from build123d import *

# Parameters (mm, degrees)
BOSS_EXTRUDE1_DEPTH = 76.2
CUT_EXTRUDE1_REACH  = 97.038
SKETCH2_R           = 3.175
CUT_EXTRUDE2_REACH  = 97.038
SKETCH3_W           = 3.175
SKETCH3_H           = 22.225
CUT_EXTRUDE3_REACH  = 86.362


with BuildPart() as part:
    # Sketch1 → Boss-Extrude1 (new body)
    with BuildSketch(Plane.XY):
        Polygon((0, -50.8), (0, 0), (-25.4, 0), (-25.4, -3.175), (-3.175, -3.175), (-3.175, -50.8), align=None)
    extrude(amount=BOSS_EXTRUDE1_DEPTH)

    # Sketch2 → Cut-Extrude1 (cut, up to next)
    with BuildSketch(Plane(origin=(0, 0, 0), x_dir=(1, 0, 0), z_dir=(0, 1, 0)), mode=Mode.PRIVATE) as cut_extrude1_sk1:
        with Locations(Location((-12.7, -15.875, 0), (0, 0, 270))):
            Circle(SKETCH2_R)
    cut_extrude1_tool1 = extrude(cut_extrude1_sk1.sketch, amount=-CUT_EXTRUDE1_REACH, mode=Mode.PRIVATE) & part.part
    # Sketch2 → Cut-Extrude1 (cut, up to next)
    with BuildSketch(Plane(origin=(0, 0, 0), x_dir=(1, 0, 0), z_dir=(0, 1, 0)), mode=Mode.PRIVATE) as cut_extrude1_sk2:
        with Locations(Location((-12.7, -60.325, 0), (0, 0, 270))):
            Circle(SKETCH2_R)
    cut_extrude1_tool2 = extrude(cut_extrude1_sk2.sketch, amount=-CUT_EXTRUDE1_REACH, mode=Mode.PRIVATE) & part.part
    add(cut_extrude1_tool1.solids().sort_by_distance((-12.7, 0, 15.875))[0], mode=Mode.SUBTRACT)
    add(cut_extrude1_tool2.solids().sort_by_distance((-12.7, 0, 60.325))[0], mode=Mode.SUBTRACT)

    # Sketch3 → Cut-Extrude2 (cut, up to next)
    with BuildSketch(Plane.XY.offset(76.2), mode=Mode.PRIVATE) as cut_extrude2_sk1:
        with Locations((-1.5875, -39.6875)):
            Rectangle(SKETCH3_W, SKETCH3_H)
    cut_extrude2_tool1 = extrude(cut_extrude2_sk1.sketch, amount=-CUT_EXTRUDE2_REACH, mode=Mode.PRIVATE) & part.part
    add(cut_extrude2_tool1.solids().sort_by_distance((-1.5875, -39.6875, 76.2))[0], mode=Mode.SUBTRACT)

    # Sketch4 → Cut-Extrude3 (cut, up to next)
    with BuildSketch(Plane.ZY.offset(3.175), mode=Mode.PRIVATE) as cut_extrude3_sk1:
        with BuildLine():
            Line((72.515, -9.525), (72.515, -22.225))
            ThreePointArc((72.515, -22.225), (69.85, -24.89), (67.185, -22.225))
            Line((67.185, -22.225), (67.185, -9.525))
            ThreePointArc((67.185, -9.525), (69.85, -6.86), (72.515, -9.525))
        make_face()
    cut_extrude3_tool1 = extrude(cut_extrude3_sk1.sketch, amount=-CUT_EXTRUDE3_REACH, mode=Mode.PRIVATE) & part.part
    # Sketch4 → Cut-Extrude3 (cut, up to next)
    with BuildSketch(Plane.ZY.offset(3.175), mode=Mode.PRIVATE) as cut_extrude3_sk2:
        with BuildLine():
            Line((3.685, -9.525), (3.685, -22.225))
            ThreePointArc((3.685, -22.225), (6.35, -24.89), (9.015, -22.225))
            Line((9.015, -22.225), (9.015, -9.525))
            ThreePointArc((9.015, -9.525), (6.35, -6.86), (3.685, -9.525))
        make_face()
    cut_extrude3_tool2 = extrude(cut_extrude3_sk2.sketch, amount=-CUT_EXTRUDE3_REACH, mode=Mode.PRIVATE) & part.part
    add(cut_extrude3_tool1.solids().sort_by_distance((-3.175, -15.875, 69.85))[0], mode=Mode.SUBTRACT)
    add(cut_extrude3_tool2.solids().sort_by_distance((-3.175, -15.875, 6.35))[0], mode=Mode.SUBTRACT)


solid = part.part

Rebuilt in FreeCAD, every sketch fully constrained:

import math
import FreeCAD as App
import Part
import Sketcher
from FreeCAD import Vector
Q = App.Units.Quantity


def add_polygon(sketch, points):
    """Adds a closed chain of lines whose ends are joined by coincident constraints."""
    first, n = sketch.GeometryCount, len(points)
    for a, b in zip(points, points[1:] + points[:1]):
        sketch.addGeometry(Part.LineSegment(App.Vector(*a, 0), App.Vector(*b, 0)), False)
    for i in range(n):
        sketch.addConstraint(Sketcher.Constraint("Coincident", first + i, 2, first + (i + 1) % n, 1))

doc = App.newDocument("Part")
body = doc.addObject("PartDesign::Body", "Body")

sketch1 = body.newObject("Sketcher::SketchObject", "Sketch")
sketch1.AttachmentSupport = (doc.getObject("XY_Plane"), [""])
sketch1.MapMode = "FlatFace"
add_polygon(sketch1, [(0, -50.8), (0, 0), (-25.4, 0), (-25.4, -3.2), (-3.2, -3.2), (-3.2, -50.8)])
sketch1.addConstraint(Sketcher.Constraint("Vertical", 0))
sketch1.addConstraint(Sketcher.Constraint("Horizontal", 1))
sketch1.addConstraint(Sketcher.Constraint("Vertical", 2))
sketch1.addConstraint(Sketcher.Constraint("Horizontal", 3))
sketch1.addConstraint(Sketcher.Constraint("Vertical", 4))
sketch1.addConstraint(Sketcher.Constraint("Horizontal", 5))
sketch1.addConstraint(Sketcher.Constraint("Coincident", 0, 2, -1, 1))
sketch1.addConstraint(Sketcher.Constraint("Equal", 5, 2))
sketch1.addConstraint(Sketcher.Constraint("DistanceX", 1, 2, 1, 1, Q("1 in")))
sketch1.addConstraint(Sketcher.Constraint("DistanceY", 0, 1, 0, 2, Q("2 in")))
sketch1.addConstraint(Sketcher.Constraint("DistanceX", 3, 1, 3, 2, Q("0.875 in")))
pad1 = body.newObject("PartDesign::Pad", "Pad")
pad1.Profile = sketch1
pad1.Length = Q("3 in")

sketch2 = body.newObject("Sketcher::SketchObject", "Sketch001")
sketch2.AttachmentSupport = (doc.getObject("XZ_Plane"), [""])
sketch2.MapMode = "FlatFace"
sketch2.addGeometry(Part.Circle(Vector(-12.7, 15.9, 0), Vector(0, 0, 1), 3.2), False)
sketch2.addConstraint(Sketcher.Constraint("Diameter", 0, Q("0.25 in")))
sketch2.addConstraint(Sketcher.Constraint("DistanceX", 0, 3, -1, 1, Q("0.5 in")))
sketch2.addConstraint(Sketcher.Constraint("DistanceY", -1, 1, 0, 3, Q("0.625 in")))
pocket1 = body.newObject("PartDesign::Pocket", "Pocket")
pocket1.Profile = sketch2
pocket1.Type = "UpToFirst"
pocket1.Reversed = True

sketch3 = body.newObject("Sketcher::SketchObject", "Sketch002")
sketch3.AttachmentSupport = (doc.getObject("XZ_Plane"), [""])
sketch3.MapMode = "FlatFace"
sketch3.addGeometry(Part.Circle(Vector(-12.7, 60.3, 0), Vector(0, 0, 1), 3.2), False)
sketch3.addConstraint(Sketcher.Constraint("Diameter", 0, Q("0.25 in")))
sketch3.addConstraint(Sketcher.Constraint("DistanceX", 0, 3, -1, 1, Q("0.5 in")))
sketch3.addConstraint(Sketcher.Constraint("DistanceY", -1, 1, 0, 3, Q("2.375 in")))
pocket2 = body.newObject("PartDesign::Pocket", "Pocket001")
pocket2.Profile = sketch3
pocket2.Type = "UpToFirst"
pocket2.Reversed = True

sketch4 = body.newObject("Sketcher::SketchObject", "Sketch003")
sketch4.AttachmentSupport = (doc.getObject("XY_Plane"), [""])
sketch4.MapMode = "FlatFace"
sketch4.AttachmentOffset = App.Placement(Vector(0, 0, 3 * 25.4), App.Rotation())
add_polygon(sketch4, [(-3.2, -28.6), (-3.2, -50.8), (0, -50.8), (0, -28.6)])
sketch4.addConstraint(Sketcher.Constraint("Vertical", 0))
sketch4.addConstraint(Sketcher.Constraint("Horizontal", 1))
sketch4.addConstraint(Sketcher.Constraint("Vertical", 2))
sketch4.addConstraint(Sketcher.Constraint("Horizontal", 3))
sketch4.addConstraint(Sketcher.Constraint("PointOnObject", 1, 2, -2))
sketch4.addConstraint(Sketcher.Constraint("DistanceY", 0, 2, -1, 1, Q("2 in")))
sketch4.addConstraint(Sketcher.Constraint("DistanceX", 1, 1, 1, 2, Q("0.125 in")))
sketch4.addConstraint(Sketcher.Constraint("DistanceY", 0, 2, 0, 1, Q("0.875 in")))
pocket3 = body.newObject("PartDesign::Pocket", "Pocket002")
pocket3.Profile = sketch4
pocket3.Type = "UpToFirst"

sketch5 = body.newObject("Sketcher::SketchObject", "Sketch004")
sketch5.AttachmentSupport = (doc.getObject("YZ_Plane"), [""])
sketch5.MapMode = "FlatFace"
sketch5.AttachmentOffset = App.Placement(Vector(0, 0, -0.125 * 25.4), App.Rotation())
sketch5.addGeometry(Part.LineSegment(Vector(-22.2, 72.5, 0), Vector(-9.5, 72.5, 0)), False)
sketch5.addGeometry(Part.ArcOfCircle(Part.Circle(Vector(-9.5, 69.8, 0), Vector(0, 0, 1), 2.7), math.radians(-90), math.radians(90)), False)
sketch5.addGeometry(Part.LineSegment(Vector(-9.5, 67.2, 0), Vector(-22.2, 67.2, 0)), False)
sketch5.addGeometry(Part.ArcOfCircle(Part.Circle(Vector(-22.2, 69.8, 0), Vector(0, 0, 1), 2.7), math.radians(90), math.radians(270)), False)
sketch5.addConstraint(Sketcher.Constraint("Tangent", 0, 2, 1, 2))
sketch5.addConstraint(Sketcher.Constraint("Tangent", 1, 1, 2, 1))
sketch5.addConstraint(Sketcher.Constraint("Tangent", 2, 2, 3, 2))
sketch5.addConstraint(Sketcher.Constraint("Tangent", 3, 1, 0, 1))
sketch5.addConstraint(Sketcher.Constraint("Horizontal", 0))
sketch5.addConstraint(Sketcher.Constraint("Horizontal", 2))
sketch5.addConstraint(Sketcher.Constraint("DistanceX", 0, 1, 0, 2, Q("0.5 in")))
sketch5.addConstraint(Sketcher.Constraint("DistanceY", -1, 1, 1, 3, Q("2.75 in")))
sketch5.addConstraint(Sketcher.Constraint("Radius", 1, 2.665))
sketch5.addConstraint(Sketcher.Constraint("DistanceX", 1, 3, -1, 1, Q("0.375 in")))
pocket4 = body.newObject("PartDesign::Pocket", "Pocket003")
pocket4.Profile = sketch5
pocket4.Type = "UpToFirst"
pocket4.Reversed = True

sketch6 = body.newObject("Sketcher::SketchObject", "Sketch005")
sketch6.AttachmentSupport = (doc.getObject("YZ_Plane"), [""])
sketch6.MapMode = "FlatFace"
sketch6.AttachmentOffset = App.Placement(Vector(0, 0, -0.125 * 25.4), App.Rotation())
sketch6.addGeometry(Part.LineSegment(Vector(-9.5, 3.7, 0), Vector(-22.2, 3.7, 0)), False)
sketch6.addGeometry(Part.ArcOfCircle(Part.Circle(Vector(-22.2, 6.3, 0), Vector(0, 0, 1), 2.7), math.radians(90), math.radians(270)), False)
sketch6.addGeometry(Part.LineSegment(Vector(-22.2, 9, 0), Vector(-9.5, 9, 0)), False)
sketch6.addGeometry(Part.ArcOfCircle(Part.Circle(Vector(-9.5, 6.3, 0), Vector(0, 0, 1), 2.7), math.radians(-90), math.radians(90)), False)
sketch6.addConstraint(Sketcher.Constraint("Tangent", 0, 2, 1, 2))
sketch6.addConstraint(Sketcher.Constraint("Tangent", 1, 1, 2, 1))
sketch6.addConstraint(Sketcher.Constraint("Tangent", 2, 2, 3, 2))
sketch6.addConstraint(Sketcher.Constraint("Tangent", 3, 1, 0, 1))
sketch6.addConstraint(Sketcher.Constraint("Horizontal", 0))
sketch6.addConstraint(Sketcher.Constraint("Horizontal", 2))
sketch6.addConstraint(Sketcher.Constraint("DistanceX", 0, 2, 0, 1, Q("0.5 in")))
sketch6.addConstraint(Sketcher.Constraint("DistanceY", -1, 1, 1, 3, Q("0.25 in")))
sketch6.addConstraint(Sketcher.Constraint("Radius", 1, 2.665))
sketch6.addConstraint(Sketcher.Constraint("DistanceX", 1, 3, -1, 1, Q("0.875 in")))
pocket5 = body.newObject("PartDesign::Pocket", "Pocket004")
pocket5.Profile = sketch6
pocket5.Type = "UpToFirst"
pocket5.Reversed = True

doc.recompute()
